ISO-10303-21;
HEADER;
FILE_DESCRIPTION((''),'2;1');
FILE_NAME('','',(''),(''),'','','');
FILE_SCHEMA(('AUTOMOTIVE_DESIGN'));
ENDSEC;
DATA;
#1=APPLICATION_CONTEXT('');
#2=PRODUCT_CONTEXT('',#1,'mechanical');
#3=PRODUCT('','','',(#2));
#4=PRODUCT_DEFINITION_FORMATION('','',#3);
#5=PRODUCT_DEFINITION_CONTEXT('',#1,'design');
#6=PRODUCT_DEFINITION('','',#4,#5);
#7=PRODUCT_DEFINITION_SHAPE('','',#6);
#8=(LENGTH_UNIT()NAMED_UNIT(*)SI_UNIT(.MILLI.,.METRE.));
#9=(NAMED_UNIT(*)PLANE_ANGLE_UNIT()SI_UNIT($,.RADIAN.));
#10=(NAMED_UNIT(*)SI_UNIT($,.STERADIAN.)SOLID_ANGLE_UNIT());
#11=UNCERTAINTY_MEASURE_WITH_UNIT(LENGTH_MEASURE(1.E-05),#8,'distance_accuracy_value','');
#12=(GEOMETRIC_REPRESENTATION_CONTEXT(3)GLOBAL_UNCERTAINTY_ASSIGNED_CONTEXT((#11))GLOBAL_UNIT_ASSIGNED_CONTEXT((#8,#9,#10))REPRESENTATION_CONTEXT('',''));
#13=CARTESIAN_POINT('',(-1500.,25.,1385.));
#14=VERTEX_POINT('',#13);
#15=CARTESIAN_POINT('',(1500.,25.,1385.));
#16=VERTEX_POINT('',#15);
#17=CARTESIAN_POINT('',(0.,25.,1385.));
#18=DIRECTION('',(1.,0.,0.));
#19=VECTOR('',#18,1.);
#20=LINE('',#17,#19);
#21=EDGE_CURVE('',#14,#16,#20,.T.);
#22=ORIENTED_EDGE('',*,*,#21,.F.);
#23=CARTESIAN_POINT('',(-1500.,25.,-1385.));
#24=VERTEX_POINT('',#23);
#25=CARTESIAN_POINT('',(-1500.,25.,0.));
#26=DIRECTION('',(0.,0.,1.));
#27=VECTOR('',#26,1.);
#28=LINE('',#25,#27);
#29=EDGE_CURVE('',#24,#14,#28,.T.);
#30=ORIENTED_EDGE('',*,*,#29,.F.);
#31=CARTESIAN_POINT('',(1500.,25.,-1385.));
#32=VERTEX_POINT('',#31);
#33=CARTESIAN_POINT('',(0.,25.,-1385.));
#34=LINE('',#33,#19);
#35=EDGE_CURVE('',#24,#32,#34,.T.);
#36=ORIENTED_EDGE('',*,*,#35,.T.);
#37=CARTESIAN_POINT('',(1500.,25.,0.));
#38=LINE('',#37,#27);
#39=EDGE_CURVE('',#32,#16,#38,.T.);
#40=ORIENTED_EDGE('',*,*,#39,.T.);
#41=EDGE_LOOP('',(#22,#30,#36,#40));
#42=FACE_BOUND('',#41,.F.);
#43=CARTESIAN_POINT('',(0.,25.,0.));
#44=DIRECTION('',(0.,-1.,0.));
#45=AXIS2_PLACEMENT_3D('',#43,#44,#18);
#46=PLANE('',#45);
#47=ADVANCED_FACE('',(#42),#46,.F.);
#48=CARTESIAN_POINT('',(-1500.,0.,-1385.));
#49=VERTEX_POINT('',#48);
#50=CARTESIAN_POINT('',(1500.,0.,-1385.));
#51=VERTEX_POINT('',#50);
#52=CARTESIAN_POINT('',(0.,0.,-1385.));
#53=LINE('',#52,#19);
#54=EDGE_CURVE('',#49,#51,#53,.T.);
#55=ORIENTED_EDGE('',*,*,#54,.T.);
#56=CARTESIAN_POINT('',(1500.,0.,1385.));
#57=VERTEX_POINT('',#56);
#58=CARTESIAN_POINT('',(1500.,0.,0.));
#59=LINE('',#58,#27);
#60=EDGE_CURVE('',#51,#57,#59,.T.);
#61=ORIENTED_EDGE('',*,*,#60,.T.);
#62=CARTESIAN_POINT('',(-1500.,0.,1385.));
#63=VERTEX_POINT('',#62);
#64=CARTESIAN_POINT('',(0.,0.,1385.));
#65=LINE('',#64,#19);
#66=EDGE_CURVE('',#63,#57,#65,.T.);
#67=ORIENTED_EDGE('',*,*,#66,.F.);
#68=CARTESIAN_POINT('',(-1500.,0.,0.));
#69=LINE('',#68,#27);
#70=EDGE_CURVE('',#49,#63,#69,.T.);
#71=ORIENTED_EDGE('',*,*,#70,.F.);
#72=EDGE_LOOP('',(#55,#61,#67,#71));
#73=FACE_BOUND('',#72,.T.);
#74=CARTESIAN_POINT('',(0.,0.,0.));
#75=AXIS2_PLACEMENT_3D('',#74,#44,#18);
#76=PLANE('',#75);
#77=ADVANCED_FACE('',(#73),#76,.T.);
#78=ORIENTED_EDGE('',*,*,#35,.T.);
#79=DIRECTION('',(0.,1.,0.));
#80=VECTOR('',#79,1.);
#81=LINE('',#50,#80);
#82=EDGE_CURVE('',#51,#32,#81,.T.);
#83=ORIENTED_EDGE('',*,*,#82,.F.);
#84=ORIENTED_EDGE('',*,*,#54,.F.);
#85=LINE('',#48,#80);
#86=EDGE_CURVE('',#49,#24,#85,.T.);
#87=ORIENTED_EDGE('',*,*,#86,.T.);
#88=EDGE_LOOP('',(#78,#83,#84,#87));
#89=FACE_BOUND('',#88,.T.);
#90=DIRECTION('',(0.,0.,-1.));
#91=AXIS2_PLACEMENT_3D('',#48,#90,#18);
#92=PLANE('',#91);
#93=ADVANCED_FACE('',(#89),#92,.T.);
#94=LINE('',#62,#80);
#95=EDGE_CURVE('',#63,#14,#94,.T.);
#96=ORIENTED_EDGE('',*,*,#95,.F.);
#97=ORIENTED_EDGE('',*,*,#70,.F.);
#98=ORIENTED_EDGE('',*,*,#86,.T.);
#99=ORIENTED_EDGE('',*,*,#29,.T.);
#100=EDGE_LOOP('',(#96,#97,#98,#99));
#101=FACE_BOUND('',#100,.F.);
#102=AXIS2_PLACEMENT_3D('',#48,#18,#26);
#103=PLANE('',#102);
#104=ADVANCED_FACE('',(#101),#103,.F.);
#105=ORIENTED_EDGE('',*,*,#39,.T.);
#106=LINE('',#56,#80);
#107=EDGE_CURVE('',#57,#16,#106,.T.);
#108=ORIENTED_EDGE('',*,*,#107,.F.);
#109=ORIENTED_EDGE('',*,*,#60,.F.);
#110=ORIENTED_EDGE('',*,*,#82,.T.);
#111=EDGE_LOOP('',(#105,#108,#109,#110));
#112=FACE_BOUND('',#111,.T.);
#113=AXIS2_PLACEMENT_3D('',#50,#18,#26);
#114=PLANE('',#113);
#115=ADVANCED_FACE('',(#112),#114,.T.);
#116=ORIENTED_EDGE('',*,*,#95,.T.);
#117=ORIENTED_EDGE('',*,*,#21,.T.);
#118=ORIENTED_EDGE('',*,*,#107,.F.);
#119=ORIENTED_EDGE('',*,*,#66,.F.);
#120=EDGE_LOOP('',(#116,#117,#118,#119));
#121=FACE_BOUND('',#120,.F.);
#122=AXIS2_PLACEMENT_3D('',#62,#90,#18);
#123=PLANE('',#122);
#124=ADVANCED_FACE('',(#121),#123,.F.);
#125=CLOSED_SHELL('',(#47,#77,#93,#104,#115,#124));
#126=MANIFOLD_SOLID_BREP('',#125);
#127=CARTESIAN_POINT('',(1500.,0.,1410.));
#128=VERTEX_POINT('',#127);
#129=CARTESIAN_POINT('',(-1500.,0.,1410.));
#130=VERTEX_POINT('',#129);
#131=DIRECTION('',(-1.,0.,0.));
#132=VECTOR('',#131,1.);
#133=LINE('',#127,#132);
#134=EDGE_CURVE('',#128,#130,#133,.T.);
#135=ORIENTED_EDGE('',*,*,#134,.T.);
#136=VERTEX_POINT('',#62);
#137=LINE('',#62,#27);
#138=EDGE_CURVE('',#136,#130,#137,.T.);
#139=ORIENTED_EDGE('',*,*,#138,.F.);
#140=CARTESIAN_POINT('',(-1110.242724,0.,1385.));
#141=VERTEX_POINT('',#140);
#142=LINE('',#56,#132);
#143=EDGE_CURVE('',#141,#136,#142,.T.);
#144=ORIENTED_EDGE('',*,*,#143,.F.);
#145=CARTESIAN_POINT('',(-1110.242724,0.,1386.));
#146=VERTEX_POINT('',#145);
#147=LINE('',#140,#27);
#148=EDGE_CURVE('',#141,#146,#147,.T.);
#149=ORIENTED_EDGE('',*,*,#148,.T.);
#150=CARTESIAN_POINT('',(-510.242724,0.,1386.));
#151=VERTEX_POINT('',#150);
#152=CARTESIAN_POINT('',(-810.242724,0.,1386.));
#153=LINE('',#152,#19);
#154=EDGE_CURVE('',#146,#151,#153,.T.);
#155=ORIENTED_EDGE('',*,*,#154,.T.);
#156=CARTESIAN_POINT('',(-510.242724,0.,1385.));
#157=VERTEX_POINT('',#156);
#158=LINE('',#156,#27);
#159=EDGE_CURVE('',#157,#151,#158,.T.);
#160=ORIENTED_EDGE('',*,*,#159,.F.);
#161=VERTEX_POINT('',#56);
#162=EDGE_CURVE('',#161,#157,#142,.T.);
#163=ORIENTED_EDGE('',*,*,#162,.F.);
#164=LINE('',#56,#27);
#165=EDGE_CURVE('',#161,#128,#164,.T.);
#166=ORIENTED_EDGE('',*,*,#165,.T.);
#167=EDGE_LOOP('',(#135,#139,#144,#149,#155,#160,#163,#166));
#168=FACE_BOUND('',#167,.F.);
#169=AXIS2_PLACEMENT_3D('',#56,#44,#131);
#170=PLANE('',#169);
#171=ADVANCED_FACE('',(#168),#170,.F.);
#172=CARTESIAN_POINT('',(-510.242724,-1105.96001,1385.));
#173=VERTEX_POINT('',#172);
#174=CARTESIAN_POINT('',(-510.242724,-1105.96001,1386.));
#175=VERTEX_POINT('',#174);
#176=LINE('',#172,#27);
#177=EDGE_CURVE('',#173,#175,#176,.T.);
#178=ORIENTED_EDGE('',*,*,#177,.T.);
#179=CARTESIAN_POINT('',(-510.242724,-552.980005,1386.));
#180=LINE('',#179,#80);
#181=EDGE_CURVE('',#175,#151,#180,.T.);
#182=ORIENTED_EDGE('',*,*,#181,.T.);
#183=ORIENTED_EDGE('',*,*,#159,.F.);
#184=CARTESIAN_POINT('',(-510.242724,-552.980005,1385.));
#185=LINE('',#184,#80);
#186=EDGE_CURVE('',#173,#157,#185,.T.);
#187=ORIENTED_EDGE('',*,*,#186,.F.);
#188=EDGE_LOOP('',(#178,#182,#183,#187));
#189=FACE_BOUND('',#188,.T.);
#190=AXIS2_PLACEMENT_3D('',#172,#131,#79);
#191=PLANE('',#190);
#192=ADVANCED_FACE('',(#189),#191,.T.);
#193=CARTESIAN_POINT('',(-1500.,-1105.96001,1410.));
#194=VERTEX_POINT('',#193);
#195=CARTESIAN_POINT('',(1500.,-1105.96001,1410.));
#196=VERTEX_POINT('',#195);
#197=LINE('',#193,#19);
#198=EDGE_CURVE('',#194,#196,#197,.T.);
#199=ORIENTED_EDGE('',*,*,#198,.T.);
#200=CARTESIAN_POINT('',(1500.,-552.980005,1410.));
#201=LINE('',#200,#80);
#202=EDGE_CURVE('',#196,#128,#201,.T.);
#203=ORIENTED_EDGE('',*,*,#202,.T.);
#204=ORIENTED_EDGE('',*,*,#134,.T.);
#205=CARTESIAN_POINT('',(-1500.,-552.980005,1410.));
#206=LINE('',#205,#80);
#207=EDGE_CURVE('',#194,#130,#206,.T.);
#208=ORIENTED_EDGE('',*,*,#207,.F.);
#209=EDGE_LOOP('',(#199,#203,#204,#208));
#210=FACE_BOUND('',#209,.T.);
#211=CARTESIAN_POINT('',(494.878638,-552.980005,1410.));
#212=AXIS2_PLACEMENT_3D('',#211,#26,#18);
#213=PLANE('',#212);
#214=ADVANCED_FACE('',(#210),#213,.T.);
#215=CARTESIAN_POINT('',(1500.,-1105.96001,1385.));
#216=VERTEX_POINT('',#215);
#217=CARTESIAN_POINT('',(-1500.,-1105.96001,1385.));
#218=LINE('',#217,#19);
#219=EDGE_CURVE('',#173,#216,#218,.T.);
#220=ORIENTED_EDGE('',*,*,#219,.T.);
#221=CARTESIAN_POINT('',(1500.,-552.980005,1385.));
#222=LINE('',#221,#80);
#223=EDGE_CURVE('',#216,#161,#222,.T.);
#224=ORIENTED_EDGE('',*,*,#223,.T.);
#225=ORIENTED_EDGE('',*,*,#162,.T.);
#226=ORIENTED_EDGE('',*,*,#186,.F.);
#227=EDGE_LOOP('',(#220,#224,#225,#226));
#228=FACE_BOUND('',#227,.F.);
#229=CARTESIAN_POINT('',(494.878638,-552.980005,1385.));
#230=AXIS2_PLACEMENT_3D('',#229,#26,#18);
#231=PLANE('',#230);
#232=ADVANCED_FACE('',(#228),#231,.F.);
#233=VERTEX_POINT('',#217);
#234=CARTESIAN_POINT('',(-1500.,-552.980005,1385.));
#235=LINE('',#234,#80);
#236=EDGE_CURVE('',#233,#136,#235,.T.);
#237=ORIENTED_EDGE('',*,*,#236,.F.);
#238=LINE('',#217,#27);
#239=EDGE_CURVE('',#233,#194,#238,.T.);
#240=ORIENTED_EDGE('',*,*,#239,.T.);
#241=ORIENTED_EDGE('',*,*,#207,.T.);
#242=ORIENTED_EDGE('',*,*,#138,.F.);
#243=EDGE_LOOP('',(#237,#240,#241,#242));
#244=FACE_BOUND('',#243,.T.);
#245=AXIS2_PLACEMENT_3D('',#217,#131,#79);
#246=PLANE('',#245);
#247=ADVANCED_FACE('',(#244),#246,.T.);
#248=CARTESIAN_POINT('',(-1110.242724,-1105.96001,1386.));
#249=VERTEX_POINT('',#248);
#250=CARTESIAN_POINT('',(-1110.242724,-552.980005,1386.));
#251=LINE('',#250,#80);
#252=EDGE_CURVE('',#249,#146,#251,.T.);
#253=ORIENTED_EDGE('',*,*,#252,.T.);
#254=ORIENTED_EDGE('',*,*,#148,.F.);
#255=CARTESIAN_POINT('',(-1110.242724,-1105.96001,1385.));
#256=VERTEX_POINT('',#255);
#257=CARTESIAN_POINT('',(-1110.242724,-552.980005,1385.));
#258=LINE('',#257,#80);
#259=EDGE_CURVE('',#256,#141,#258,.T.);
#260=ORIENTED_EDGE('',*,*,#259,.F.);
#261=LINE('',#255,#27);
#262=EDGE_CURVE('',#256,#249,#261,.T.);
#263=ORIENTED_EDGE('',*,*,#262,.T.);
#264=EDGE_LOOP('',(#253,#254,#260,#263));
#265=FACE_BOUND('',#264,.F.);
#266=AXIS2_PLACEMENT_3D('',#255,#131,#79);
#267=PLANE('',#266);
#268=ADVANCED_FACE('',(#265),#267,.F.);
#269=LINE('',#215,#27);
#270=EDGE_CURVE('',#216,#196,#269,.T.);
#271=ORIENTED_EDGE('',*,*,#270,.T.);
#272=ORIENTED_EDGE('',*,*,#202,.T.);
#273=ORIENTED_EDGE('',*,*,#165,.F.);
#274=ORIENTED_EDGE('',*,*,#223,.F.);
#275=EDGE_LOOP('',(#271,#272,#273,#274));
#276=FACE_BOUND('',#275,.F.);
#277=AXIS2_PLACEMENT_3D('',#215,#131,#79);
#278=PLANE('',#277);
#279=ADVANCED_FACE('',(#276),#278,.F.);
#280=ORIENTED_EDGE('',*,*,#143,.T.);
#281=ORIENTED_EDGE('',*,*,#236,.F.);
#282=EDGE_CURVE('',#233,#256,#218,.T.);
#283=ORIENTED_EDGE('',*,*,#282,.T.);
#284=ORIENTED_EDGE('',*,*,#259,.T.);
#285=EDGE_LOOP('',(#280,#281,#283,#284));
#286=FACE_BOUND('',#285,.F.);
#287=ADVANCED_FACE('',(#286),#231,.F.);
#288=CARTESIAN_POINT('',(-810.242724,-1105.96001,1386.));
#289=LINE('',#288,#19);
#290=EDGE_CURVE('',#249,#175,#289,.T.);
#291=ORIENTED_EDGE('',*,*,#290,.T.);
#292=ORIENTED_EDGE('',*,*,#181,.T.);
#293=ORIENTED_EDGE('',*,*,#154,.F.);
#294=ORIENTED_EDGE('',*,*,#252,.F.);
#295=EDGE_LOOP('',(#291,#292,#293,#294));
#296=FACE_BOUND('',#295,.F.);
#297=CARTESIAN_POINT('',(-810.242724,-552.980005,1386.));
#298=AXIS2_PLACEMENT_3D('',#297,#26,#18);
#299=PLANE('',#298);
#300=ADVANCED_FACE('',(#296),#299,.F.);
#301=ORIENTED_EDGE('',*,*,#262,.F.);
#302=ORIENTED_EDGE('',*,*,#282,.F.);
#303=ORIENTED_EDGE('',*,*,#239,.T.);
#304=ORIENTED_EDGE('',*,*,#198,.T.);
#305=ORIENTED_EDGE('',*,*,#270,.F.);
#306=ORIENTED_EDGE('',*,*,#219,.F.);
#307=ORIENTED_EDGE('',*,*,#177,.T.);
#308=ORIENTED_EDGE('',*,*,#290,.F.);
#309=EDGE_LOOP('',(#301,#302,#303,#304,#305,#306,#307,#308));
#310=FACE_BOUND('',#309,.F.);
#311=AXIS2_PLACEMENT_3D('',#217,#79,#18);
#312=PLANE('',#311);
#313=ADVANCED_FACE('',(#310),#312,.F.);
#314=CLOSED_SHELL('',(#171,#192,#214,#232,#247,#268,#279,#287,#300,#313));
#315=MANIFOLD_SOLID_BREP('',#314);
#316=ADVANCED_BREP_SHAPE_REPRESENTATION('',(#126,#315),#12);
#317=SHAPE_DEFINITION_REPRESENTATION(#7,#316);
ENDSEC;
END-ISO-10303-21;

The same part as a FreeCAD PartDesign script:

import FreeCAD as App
import Part
import Sketcher
from FreeCAD import Vector


def add_polygon(sketch, points):
    """Adds a closed chain of lines whose ends are joined by coincident constraints."""
    first, n = sketch.GeometryCount, len(points)
    for a, b in zip(points, points[1:] + points[:1]):
        sketch.addGeometry(Part.LineSegment(App.Vector(*a, 0), App.Vector(*b, 0)), False)
    for i in range(n):
        sketch.addConstraint(Sketcher.Constraint("Coincident", first + i, 2, first + (i + 1) % n, 1))

doc = App.newDocument("Part")
params = doc.addObject("Spreadsheet::Sheet", "Params")
for row, (alias, value) in enumerate([
    ("sketch1_width", "3000 mm"),
    ("sketch1_height", "2770 mm"),
    ("pad1_length", "25 mm"),
    ("sketch2_width", "3000 mm"),
    ("pad2_length", "25 mm"),
    ("sketch3_width", "600 mm"),
    ("pocket1_length", "1 mm"),
], start=1):
    params.set(f"A{row}", alias)
    params.set(f"B{row}", "=" + value)
    params.setAlias(f"B{row}", alias)

body = doc.addObject("PartDesign::Body", "Body")

# Sketch on XZ plane
sketch1 = body.newObject("Sketcher::SketchObject", "Sketch")
sketch1.AttachmentSupport = (doc.getObject("XZ_Plane"), [""])
sketch1.MapMode = "FlatFace"
add_polygon(sketch1, [(-1500, 1385), (-1500, -1385), (1500, -1385), (1500, 1385)])  # lines 0-3
sketch1.addConstraint(Sketcher.Constraint("Vertical", 0))
sketch1.addConstraint(Sketcher.Constraint("Horizontal", 1))
sketch1.addConstraint(Sketcher.Constraint("Vertical", 2))
sketch1.addConstraint(Sketcher.Constraint("Horizontal", 3))
sketch1.addConstraint(Sketcher.Constraint("Symmetric", 0, 2, 2, 2, -1, 1))
sketch1.addConstraint(Sketcher.Constraint("DistanceX", 1, 1, 1, 2, 3000.0))
sketch1.addConstraint(Sketcher.Constraint("DistanceY", 0, 2, 0, 1, 2770.0))
sketch1.setExpression("Constraints[9]", "Params.sketch1_width")
sketch1.setExpression("Constraints[10]", "Params.sketch1_height")
pad1 = body.newObject("PartDesign::Pad", "Pad")
pad1.Profile = sketch1
pad1.setExpression("Length", "Params.pad1_length")
pad1.Reversed = True
body2 = doc.addObject("PartDesign::Body", "Body001")

# Sketch on XY plane
sketch2 = body2.newObject("Sketcher::SketchObject", "Sketch001")
sketch2.AttachmentSupport = (doc.getObject("XY_Plane001"), [""])
sketch2.MapMode = "FlatFace"
sketch2.AttachmentOffset = App.Placement(Vector(0, 0, 1385), App.Rotation())
add_polygon(sketch2, [(1500, -1106), (1500, 0), (-1500, 0), (-1500, -1106)])  # lines 0-3
sketch2.addConstraint(Sketcher.Constraint("Vertical", 0))
sketch2.addConstraint(Sketcher.Constraint("Horizontal", 1))
sketch2.addConstraint(Sketcher.Constraint("Vertical", 2))
sketch2.addConstraint(Sketcher.Constraint("Horizontal", 3))
sketch2.addConstraint(Sketcher.Constraint("Symmetric", 0, 2, 1, 2, -1, 1))
sketch2.addConstraint(Sketcher.Constraint("DistanceX", 1, 2, 1, 1, 3000.0))
sketch2.addConstraint(Sketcher.Constraint("DistanceY", 0, 1, 0, 2, 1105.960011))
sketch2.setExpression("Constraints[9]", "Params.sketch2_width")
pad2 = body2.newObject("PartDesign::Pad", "Pad001")
pad2.Profile = sketch2
pad2.setExpression("Length", "Params.pad2_length")

# Sketch on XY plane
sketch3 = body2.newObject("Sketcher::SketchObject", "Sketch002")
sketch3.AttachmentSupport = (doc.getObject("XY_Plane001"), [""])
sketch3.MapMode = "FlatFace"
sketch3.AttachmentOffset = App.Placement(Vector(0, 0, 1385), App.Rotation())
add_polygon(sketch3, [(-1110, 0), (-1110, -1106), (-510, -1106), (-510, 0)])  # lines 0-3
sketch3.addConstraint(Sketcher.Constraint("Vertical", 0))
sketch3.addConstraint(Sketcher.Constraint("Horizontal", 1))
sketch3.addConstraint(Sketcher.Constraint("Vertical", 2))
sketch3.addConstraint(Sketcher.Constraint("Horizontal", 3))
sketch3.addConstraint(Sketcher.Constraint("PointOnObject", 2, 2, -1))
sketch3.addConstraint(Sketcher.Constraint("DistanceX", 1, 1, 1, 2, 600.0))
sketch3.addConstraint(Sketcher.Constraint("DistanceY", 0, 2, 0, 1, 1105.960011))
sketch3.addConstraint(Sketcher.Constraint("DistanceX", 0, 2, -1, 1, 1110.242724))
sketch3.setExpression("Constraints[9]", "Params.sketch3_width")
pocket1 = body2.newObject("PartDesign::Pocket", "Pocket")
pocket1.Profile = sketch3
pocket1.setExpression("Length", "Params.pocket1_length")
pocket1.Reversed = True

doc.recompute()
